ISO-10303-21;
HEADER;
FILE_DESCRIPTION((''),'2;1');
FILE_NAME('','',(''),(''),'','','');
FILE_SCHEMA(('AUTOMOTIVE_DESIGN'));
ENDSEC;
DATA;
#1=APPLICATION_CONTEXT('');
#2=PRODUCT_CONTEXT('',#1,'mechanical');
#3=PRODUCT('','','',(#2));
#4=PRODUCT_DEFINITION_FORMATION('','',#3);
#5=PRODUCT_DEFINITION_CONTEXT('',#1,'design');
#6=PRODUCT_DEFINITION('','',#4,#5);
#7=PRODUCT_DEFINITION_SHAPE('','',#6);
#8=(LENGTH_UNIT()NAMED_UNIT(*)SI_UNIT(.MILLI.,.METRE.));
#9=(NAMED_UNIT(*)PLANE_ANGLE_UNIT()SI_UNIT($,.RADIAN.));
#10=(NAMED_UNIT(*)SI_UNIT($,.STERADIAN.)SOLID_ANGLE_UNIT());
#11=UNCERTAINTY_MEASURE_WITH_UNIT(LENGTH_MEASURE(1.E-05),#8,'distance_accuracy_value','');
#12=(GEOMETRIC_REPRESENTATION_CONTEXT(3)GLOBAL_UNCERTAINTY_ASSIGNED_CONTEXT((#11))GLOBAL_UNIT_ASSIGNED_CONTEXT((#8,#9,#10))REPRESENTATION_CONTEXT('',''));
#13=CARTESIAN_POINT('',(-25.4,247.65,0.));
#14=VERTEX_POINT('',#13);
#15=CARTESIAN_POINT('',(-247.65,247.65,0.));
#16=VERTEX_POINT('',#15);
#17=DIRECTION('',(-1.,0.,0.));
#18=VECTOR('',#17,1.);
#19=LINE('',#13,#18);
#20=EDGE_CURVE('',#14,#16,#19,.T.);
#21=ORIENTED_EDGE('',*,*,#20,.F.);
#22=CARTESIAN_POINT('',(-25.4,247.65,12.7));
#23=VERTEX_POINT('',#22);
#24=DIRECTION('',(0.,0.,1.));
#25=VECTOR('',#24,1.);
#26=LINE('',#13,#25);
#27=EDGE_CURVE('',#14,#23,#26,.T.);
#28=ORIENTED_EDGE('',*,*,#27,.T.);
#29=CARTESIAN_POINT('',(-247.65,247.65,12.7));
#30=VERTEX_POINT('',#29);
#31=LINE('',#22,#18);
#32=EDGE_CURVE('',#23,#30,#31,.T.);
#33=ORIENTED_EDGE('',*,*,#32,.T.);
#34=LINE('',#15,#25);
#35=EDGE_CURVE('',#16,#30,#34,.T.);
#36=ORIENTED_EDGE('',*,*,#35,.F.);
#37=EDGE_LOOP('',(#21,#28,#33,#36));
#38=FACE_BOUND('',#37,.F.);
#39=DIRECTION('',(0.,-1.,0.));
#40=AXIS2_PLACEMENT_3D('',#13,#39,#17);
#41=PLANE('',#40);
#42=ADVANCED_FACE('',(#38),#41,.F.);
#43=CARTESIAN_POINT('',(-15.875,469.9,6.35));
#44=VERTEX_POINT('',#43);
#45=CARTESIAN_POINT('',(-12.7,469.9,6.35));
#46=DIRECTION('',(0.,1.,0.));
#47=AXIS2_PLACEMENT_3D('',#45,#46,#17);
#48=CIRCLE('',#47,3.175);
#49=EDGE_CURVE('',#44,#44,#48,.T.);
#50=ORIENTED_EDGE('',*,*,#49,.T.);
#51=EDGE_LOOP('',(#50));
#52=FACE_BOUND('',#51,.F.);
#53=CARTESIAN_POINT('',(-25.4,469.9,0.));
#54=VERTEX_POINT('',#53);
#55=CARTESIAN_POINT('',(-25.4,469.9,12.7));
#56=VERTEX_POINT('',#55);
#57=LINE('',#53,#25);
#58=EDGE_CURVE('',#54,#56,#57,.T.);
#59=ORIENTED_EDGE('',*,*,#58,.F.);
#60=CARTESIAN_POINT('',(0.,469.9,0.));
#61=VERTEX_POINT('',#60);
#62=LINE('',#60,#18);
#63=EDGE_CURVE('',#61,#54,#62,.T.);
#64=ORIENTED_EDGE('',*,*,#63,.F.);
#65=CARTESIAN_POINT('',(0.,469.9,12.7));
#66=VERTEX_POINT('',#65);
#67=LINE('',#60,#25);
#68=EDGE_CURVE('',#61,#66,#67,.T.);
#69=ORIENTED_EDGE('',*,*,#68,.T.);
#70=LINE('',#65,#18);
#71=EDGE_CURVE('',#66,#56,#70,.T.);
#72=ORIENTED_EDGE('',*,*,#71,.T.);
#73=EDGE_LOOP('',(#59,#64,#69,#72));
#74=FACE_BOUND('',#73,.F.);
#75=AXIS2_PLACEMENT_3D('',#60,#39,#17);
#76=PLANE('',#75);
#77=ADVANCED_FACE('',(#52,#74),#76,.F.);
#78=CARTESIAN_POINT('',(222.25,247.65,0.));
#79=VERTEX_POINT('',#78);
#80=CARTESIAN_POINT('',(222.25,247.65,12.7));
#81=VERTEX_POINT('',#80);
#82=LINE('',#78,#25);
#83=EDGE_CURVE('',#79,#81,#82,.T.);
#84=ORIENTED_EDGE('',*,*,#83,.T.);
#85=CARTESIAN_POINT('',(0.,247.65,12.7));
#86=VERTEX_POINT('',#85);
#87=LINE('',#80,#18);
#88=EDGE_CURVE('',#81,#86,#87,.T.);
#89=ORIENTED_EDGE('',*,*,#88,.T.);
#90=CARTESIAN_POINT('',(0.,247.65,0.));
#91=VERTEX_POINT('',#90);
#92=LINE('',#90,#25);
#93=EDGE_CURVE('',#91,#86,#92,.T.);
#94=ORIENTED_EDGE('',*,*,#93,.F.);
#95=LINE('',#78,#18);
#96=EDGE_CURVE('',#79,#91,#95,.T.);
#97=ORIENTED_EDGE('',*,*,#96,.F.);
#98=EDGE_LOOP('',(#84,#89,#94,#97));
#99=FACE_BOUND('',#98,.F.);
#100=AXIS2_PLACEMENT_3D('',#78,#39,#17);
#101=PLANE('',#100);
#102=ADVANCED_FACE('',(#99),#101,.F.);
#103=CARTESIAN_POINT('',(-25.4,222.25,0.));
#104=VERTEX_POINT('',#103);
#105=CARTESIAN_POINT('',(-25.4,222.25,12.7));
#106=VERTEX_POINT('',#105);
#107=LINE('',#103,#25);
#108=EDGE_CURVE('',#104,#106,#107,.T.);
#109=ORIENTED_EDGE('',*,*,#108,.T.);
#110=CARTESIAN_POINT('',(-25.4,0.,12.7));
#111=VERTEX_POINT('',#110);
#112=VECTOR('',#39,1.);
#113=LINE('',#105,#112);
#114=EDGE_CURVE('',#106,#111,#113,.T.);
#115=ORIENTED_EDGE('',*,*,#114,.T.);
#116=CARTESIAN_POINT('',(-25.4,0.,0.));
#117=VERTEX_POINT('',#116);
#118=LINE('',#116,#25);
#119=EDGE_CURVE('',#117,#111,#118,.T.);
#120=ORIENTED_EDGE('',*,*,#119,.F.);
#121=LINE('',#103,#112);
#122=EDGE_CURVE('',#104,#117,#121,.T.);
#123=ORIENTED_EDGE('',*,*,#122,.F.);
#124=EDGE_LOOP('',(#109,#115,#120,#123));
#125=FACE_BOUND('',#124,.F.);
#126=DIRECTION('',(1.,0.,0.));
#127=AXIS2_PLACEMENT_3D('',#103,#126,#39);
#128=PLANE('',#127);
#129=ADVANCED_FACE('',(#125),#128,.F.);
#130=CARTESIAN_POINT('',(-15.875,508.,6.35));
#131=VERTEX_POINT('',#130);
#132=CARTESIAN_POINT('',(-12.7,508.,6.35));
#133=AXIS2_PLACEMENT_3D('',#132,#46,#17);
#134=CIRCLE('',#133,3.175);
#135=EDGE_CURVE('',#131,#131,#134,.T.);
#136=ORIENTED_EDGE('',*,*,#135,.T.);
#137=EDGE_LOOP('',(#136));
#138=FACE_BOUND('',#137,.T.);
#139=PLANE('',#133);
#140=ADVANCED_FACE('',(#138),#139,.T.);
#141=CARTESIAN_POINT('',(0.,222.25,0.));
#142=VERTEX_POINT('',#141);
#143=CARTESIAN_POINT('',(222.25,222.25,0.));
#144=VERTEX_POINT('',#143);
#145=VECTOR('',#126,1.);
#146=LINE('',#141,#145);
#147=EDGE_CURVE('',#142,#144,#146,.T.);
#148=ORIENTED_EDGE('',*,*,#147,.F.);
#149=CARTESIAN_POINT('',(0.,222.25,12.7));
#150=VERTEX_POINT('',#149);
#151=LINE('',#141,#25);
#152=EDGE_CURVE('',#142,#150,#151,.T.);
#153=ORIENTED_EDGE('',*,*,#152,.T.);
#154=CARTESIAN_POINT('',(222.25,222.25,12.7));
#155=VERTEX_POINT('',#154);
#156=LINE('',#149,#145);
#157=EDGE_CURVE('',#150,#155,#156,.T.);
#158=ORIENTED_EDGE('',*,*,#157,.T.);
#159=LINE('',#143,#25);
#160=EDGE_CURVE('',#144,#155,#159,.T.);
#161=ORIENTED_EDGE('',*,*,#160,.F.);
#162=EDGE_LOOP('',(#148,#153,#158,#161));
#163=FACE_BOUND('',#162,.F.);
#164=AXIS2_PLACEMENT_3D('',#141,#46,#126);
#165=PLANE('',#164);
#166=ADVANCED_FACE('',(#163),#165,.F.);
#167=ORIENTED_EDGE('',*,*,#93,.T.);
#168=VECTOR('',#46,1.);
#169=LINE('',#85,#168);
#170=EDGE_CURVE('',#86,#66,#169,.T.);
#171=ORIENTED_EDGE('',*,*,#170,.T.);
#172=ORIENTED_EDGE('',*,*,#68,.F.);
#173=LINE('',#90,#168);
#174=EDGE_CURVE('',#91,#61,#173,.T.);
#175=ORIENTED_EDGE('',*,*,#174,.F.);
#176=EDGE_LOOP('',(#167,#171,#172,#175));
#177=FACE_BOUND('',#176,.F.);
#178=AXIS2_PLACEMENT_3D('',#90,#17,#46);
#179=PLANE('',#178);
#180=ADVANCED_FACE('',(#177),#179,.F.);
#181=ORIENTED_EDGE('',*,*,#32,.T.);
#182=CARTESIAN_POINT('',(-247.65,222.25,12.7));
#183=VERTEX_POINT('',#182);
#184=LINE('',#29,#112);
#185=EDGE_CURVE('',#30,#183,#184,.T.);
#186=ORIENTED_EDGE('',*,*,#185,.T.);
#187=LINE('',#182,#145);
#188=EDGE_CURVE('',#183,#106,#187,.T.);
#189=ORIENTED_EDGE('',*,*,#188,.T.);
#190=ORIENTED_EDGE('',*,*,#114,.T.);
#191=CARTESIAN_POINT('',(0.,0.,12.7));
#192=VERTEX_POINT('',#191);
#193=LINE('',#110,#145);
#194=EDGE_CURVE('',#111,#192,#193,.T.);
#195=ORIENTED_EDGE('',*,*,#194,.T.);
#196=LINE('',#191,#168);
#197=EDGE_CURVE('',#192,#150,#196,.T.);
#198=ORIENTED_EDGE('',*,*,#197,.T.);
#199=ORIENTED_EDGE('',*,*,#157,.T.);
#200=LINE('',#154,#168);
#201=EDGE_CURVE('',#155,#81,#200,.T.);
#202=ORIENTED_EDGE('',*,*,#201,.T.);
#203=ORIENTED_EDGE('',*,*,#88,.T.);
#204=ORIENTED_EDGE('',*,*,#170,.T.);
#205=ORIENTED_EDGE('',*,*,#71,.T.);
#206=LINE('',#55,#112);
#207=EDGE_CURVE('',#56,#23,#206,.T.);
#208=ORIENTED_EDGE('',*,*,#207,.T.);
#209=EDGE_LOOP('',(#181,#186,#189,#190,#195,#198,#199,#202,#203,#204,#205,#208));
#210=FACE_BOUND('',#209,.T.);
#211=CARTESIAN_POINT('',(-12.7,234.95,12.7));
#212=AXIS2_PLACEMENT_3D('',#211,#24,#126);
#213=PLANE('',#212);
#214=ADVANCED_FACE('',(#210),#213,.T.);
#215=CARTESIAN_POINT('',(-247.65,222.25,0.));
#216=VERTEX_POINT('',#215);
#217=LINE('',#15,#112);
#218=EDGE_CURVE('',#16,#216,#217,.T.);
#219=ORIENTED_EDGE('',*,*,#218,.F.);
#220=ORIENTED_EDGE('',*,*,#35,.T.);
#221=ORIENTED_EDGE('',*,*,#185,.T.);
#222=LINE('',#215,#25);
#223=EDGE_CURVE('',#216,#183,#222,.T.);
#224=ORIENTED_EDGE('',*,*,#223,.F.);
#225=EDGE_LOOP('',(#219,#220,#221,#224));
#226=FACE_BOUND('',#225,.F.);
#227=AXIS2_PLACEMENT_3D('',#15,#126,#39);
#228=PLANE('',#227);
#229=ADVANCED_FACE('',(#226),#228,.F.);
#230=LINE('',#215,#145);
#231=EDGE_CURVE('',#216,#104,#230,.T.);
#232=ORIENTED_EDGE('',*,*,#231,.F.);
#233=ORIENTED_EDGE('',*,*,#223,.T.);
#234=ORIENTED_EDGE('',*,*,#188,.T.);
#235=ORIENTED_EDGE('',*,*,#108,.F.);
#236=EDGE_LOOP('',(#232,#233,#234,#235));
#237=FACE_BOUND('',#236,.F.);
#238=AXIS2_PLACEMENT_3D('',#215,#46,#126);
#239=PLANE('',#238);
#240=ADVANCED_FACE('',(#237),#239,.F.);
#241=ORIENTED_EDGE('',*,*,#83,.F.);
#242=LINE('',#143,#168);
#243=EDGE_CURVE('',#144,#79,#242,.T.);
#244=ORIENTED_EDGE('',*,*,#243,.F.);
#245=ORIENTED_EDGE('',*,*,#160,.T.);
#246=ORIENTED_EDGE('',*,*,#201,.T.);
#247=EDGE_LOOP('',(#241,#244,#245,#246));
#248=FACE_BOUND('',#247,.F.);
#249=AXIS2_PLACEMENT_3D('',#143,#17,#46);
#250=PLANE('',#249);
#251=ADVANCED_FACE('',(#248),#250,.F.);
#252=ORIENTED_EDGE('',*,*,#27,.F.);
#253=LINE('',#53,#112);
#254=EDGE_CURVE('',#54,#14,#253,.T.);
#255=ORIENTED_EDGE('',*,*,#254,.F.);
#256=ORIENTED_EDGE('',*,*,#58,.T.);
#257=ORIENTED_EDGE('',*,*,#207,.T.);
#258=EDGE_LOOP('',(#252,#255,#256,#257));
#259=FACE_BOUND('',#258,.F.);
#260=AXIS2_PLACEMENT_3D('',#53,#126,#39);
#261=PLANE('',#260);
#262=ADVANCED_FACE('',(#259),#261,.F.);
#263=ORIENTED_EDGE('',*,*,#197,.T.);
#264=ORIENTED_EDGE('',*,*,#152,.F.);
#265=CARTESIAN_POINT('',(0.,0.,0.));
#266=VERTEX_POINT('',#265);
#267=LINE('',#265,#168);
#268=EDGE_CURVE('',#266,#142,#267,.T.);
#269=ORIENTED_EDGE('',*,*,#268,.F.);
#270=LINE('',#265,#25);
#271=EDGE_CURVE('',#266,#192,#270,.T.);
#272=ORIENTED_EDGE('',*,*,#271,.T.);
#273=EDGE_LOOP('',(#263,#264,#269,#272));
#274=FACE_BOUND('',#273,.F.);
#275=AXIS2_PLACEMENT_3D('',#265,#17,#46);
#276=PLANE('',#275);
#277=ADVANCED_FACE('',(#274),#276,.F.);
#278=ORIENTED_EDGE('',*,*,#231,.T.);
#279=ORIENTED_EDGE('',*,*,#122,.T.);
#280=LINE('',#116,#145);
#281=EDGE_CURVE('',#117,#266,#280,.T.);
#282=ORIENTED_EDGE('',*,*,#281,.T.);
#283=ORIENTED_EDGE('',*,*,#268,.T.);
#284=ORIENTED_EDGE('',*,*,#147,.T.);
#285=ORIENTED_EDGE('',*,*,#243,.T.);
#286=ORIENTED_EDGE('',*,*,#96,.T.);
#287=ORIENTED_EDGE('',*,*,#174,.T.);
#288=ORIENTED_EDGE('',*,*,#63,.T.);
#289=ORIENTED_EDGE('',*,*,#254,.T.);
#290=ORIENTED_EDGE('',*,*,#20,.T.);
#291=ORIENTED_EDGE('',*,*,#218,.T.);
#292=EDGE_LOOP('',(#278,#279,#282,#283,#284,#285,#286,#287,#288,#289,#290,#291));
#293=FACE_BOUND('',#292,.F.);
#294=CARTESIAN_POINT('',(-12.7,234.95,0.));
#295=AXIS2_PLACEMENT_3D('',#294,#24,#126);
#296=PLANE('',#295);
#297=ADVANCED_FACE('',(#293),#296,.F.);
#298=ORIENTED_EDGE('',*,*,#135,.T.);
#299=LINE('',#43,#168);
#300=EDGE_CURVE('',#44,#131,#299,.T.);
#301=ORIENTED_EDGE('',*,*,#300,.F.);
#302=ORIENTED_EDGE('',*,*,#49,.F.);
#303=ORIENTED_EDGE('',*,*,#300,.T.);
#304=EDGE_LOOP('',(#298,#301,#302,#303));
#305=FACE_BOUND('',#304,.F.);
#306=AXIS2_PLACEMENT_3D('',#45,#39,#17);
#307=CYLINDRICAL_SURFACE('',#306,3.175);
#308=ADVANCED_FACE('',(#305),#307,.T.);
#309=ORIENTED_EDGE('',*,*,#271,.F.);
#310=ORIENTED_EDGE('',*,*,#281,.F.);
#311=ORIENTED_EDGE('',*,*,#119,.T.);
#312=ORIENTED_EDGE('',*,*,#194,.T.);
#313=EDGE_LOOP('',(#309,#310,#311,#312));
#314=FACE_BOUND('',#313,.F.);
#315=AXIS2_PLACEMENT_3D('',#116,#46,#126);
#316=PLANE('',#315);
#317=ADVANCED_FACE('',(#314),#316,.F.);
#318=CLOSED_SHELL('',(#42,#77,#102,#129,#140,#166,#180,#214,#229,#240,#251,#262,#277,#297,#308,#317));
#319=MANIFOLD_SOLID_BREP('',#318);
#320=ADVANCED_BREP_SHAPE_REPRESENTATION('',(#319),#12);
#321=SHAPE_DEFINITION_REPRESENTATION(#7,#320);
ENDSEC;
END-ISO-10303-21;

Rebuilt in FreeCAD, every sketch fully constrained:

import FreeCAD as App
import Part
import Sketcher
from FreeCAD import Vector
Q = App.Units.Quantity

doc = App.newDocument("Part")
body = doc.addObject("PartDesign::Body", "Body")

# Sketch on XY plane
sketch1 = body.newObject("Sketcher::SketchObject", "Sketch")
sketch1.AttachmentSupport = (doc.getObject("XY_Plane"), [""])
sketch1.MapMode = "FlatFace"
sketch1.addGeometry(Part.LineSegment(Vector(-25, 0, 0), Vector(0, 0, 0)), False)
sketch1.addGeometry(Part.LineSegment(Vector(0, 0, 0), Vector(0, 222, 0)), False)
sketch1.addGeometry(Part.LineSegment(Vector(0, 222, 0), Vector(222, 222, 0)), False)
sketch1.addGeometry(Part.LineSegment(Vector(222, 222, 0), Vector(222, 248, 0)), False)
sketch1.addGeometry(Part.LineSegment(Vector(222, 248, 0), Vector(0, 248, 0)), False)
sketch1.addGeometry(Part.LineSegment(Vector(0, 248, 0), Vector(0, 470, 0)), False)
sketch1.addGeometry(Part.LineSegment(Vector(0, 470, 0), Vector(-25, 470, 0)), False)
sketch1.addGeometry(Part.LineSegment(Vector(-25, 470, 0), Vector(-25, 248, 0)), False)
sketch1.addGeometry(Part.LineSegment(Vector(-25, 248, 0), Vector(-248, 248, 0)), False)
sketch1.addGeometry(Part.LineSegment(Vector(-248, 248, 0), Vector(-248, 222, 0)), False)
sketch1.addGeometry(Part.LineSegment(Vector(-248, 222, 0), Vector(-25, 222, 0)), False)
sketch1.addGeometry(Part.LineSegment(Vector(-25, 222, 0), Vector(-25, 0, 0)), False)
sketch1.addConstraint(Sketcher.Constraint("Coincident", 0, 2, 1, 1))
sketch1.addConstraint(Sketcher.Constraint("Coincident", 1, 2, 2, 1))
sketch1.addConstraint(Sketcher.Constraint("Coincident", 2, 2, 3, 1))
sketch1.addConstraint(Sketcher.Constraint("Coincident", 3, 2, 4, 1))
sketch1.addConstraint(Sketcher.Constraint("Coincident", 4, 2, 5, 1))
sketch1.addConstraint(Sketcher.Constraint("Coincident", 5, 2, 6, 1))
sketch1.addConstraint(Sketcher.Constraint("Coincident", 6, 2, 7, 1))
sketch1.addConstraint(Sketcher.Constraint("Coincident", 7, 2, 8, 1))
sketch1.addConstraint(Sketcher.Constraint("Coincident", 8, 2, 9, 1))
sketch1.addConstraint(Sketcher.Constraint("Coincident", 9, 2, 10, 1))
sketch1.addConstraint(Sketcher.Constraint("Coincident", 10, 2, 11, 1))
sketch1.addConstraint(Sketcher.Constraint("Coincident", 11, 2, 0, 1))
sketch1.addConstraint(Sketcher.Constraint("Horizontal", 0))
sketch1.addConstraint(Sketcher.Constraint("Vertical", 1))
sketch1.addConstraint(Sketcher.Constraint("Horizontal", 2))
sketch1.addConstraint(Sketcher.Constraint("Vertical", 3))
sketch1.addConstraint(Sketcher.Constraint("Horizontal", 4))
sketch1.addConstraint(Sketcher.Constraint("Vertical", 5))
sketch1.addConstraint(Sketcher.Constraint("Horizontal", 6))
sketch1.addConstraint(Sketcher.Constraint("Vertical", 7))
sketch1.addConstraint(Sketcher.Constraint("Horizontal", 8))
sketch1.addConstraint(Sketcher.Constraint("Vertical", 9))
sketch1.addConstraint(Sketcher.Constraint("Horizontal", 10))
sketch1.addConstraint(Sketcher.Constraint("Vertical", 11))
sketch1.addConstraint(Sketcher.Constraint("Coincident", 0, 2, -1, 1))
sketch1.addConstraint(Sketcher.Constraint("PointOnObject", 4, 2, -2))
sketch1.addConstraint(Sketcher.Constraint("Horizontal", 4, 2, 7, 2))
sketch1.addConstraint(Sketcher.Constraint("Horizontal", 2, 2, 9, 2))
sketch1.addConstraint(Sketcher.Constraint("Vertical", 7, 2, 10, 2))
sketch1.addConstraint(Sketcher.Constraint("Equal", 4, 8))
sketch1.addConstraint(Sketcher.Constraint("Equal", 10, 1))
sketch1.addConstraint(Sketcher.Constraint("Equal", 6, 3))
sketch1.addConstraint(Sketcher.Constraint("Equal", 1, 5))
sketch1.addConstraint(Sketcher.Constraint("DistanceX", 0, 1, 0, 2, Q("1 in")))
sketch1.addConstraint(Sketcher.Constraint("DistanceX", 2, 1, 2, 2, Q("8.75 in")))
pad1 = body.newObject("PartDesign::Pad", "Pad")
pad1.Profile = sketch1
pad1.Length = Q("0.5 in")

# Sketch on XZ plane
sketch2 = body.newObject("Sketcher::SketchObject", "Sketch001")
sketch2.AttachmentSupport = (doc.getObject("XZ_Plane"), [""])
sketch2.MapMode = "FlatFace"
sketch2.AttachmentOffset = App.Placement(Vector(0, 0, -18.5 * 25.4), App.Rotation())
sketch2.addGeometry(Part.Circle(Vector(-12.7, 6.3, 0), Vector(0, 0, 1), 3.2), False)
sketch2.addConstraint(Sketcher.Constraint("Diameter", 0, Q("0.25 in")))
sketch2.addConstraint(Sketcher.Constraint("DistanceX", 0, 3, -1, 1, Q("0.5 in")))
sketch2.addConstraint(Sketcher.Constraint("DistanceY", -1, 1, 0, 3, Q("0.25 in")))
pad2 = body.newObject("PartDesign::Pad", "Pad001")
pad2.Profile = sketch2
pad2.Length = Q("1.5 in")
pad2.Reversed = True

doc.recompute()
